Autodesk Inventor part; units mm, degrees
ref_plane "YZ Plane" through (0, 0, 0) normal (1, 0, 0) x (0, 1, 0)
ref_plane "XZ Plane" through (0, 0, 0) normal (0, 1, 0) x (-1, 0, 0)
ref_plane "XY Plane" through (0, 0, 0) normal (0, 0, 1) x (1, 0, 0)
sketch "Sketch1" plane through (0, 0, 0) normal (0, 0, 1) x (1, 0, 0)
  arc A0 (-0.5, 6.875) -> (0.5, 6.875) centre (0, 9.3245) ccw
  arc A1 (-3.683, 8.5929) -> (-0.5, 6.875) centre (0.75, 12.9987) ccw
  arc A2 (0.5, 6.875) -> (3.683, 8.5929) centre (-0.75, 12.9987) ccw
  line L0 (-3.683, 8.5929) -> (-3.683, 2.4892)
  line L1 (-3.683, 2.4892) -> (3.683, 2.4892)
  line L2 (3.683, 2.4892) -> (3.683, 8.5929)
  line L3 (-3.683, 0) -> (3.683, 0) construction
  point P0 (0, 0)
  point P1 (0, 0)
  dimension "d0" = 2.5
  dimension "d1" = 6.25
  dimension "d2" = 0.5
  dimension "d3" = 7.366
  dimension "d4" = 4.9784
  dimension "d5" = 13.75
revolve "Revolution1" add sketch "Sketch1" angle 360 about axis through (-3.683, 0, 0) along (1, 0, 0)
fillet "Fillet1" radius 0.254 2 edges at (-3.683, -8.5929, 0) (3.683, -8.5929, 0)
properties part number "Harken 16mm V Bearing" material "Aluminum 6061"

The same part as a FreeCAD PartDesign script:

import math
import FreeCAD as App
import Part
import Sketcher
from FreeCAD import Vector


def edges_at(feature, points):
    """Names of the edges that pass closest to the given points."""
    edges = feature.Shape.Edges
    near = lambda p: min(range(len(edges)), key=lambda i: edges[i].distToShape(Part.Vertex(*p))[0])
    return sorted({f"Edge{near(p) + 1}" for p in points})

doc = App.newDocument("Part")
body = doc.addObject("PartDesign::Body", "Body")

# Sketch on XY plane
sketch1 = body.newObject("Sketcher::SketchObject", "Sketch")
sketch1.AttachmentSupport = (doc.getObject("XY_Plane"), [""])
sketch1.MapMode = "FlatFace"
sketch1.addGeometry(Part.ArcOfCircle(Part.Circle(Vector(0, 9.3245, 0), Vector(0, 0, 1), 2.50001), math.radians(-101.536912), math.radians(-78.463088)), False)
sketch1.addGeometry(Part.ArcOfCircle(Part.Circle(Vector(0.75, 12.9987, 0), Vector(0, 0, 1), 6.250005), math.radians(-135.176318), math.radians(-101.537004)), False)
sketch1.addGeometry(Part.LineSegment(Vector(-3.683, 8.5929, 0), Vector(-3.683, 2.4892, 0)), False)
sketch1.addGeometry(Part.LineSegment(Vector(-3.683, 2.4892, 0), Vector(3.683, 2.4892, 0)), False)
sketch1.addGeometry(Part.LineSegment(Vector(3.683, 2.4892, 0), Vector(3.683, 8.5929, 0)), False)
sketch1.addGeometry(Part.ArcOfCircle(Part.Circle(Vector(-0.75, 12.9987, 0), Vector(0, 0, 1), 6.249976), math.radians(-78.462996), math.radians(-44.823682)), False)
sketch1.addConstraint(Sketcher.Constraint("Tangent", 0, 1, 1, 2))
sketch1.addConstraint(Sketcher.Constraint("Coincident", 1, 1, 2, 1))
sketch1.addConstraint(Sketcher.Constraint("Coincident", 2, 2, 3, 1))
sketch1.addConstraint(Sketcher.Constraint("Coincident", 3, 2, 4, 1))
sketch1.addConstraint(Sketcher.Constraint("Coincident", 4, 2, 5, 2))
sketch1.addConstraint(Sketcher.Constraint("Tangent", 5, 1, 0, 2))
sketch1.addConstraint(Sketcher.Constraint("Vertical", 2))
sketch1.addConstraint(Sketcher.Constraint("Horizontal", 3))
sketch1.addConstraint(Sketcher.Constraint("Vertical", 4))
sketch1.addConstraint(Sketcher.Constraint("Equal", 1, 5))
sketch1.addConstraint(Sketcher.Constraint("Symmetric", 1, 3, 5, 3, -2))
sketch1.addConstraint(Sketcher.Constraint("Horizontal", 1, 1, 4, 2))
sketch1.addConstraint(Sketcher.Constraint("Radius", 0, 2.5))
sketch1.addConstraint(Sketcher.Constraint("Radius", 1, 6.25))
sketch1.addConstraint(Sketcher.Constraint("DistanceX", 0, 1, -1, 1, 0.5))
sketch1.addConstraint(Sketcher.Constraint("DistanceX", 3, 1, 3, 2, 7.366))
sketch1.addConstraint(Sketcher.Constraint("DistanceY", 2, 2, 2, 1, 6.1037))
sketch1.addConstraint(Sketcher.Constraint("DistanceY", -1, 1, 0, 1, 6.875))
revolution = body.newObject("PartDesign::Revolution", "Revolution")
revolution.Profile = sketch1
revolution.ReferenceAxis = (sketch1, ["H_Axis"])
revolution.Angle = 360
doc.recompute()

fillet = body.newObject("PartDesign::Fillet", "Fillet")
fillet.Base = (revolution, edges_at(revolution, [(-3.683, -8.593, 0), (3.683, -8.593, 0)]))
fillet.Radius = 0.254

doc.recompute()
